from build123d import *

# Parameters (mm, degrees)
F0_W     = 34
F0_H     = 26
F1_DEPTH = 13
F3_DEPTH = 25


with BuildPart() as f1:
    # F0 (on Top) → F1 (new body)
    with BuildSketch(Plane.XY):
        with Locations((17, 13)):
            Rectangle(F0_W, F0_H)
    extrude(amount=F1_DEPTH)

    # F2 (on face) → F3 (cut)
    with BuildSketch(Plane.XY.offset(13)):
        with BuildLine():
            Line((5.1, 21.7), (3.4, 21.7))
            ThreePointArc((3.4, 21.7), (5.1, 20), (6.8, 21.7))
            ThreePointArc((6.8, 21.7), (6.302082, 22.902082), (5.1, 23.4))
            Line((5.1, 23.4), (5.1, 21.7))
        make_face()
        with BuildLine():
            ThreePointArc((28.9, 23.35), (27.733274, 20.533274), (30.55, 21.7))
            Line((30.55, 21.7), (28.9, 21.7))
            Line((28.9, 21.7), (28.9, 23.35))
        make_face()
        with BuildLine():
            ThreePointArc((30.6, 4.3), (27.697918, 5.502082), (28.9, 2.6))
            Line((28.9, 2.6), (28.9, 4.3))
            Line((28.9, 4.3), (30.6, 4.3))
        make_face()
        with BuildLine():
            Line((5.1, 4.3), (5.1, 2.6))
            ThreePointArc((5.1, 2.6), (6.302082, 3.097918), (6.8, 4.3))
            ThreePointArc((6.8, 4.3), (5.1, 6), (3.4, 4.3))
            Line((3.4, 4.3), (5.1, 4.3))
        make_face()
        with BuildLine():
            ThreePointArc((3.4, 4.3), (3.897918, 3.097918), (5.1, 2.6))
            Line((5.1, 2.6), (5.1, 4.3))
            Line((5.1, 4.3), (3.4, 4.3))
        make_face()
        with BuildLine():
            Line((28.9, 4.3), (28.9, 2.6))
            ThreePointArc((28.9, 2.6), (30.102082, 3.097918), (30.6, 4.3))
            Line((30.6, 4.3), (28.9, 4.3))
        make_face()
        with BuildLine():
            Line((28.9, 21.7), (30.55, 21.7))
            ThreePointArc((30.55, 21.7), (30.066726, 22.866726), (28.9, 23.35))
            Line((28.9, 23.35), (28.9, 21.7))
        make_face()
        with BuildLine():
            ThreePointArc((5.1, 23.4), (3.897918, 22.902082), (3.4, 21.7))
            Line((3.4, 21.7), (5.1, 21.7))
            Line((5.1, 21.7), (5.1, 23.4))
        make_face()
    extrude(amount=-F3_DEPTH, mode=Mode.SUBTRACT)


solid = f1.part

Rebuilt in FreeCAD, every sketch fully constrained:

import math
import FreeCAD as App
import Part
import Sketcher
Q = App.Units.Quantity

doc = App.newDocument("Part")
body = doc.addObject("PartDesign::Body", "Body")

sketch1 = body.newObject("Sketcher::SketchObject", "Sketch")
sketch1.AttachmentSupport = (doc.getObject("XY_Plane"), [""])
sketch1.MapMode = "FlatFace"
sketch1.addGeometry(Part.LineSegment(App.Vector(0, 26, 0), App.Vector(0, 0, 0)), False)
sketch1.addGeometry(Part.LineSegment(App.Vector(0, 0, 0), App.Vector(34, 0, 0)), False)
sketch1.addGeometry(Part.LineSegment(App.Vector(34, 0, 0), App.Vector(34, 26, 0)), False)
sketch1.addGeometry(Part.LineSegment(App.Vector(34, 26, 0), App.Vector(0, 26, 0)), False)
sketch1.addConstraint(Sketcher.Constraint("Coincident", 0, 2, 1, 1))
sketch1.addConstraint(Sketcher.Constraint("Coincident", 1, 2, 2, 1))
sketch1.addConstraint(Sketcher.Constraint("Coincident", 2, 2, 3, 1))
sketch1.addConstraint(Sketcher.Constraint("Coincident", 3, 2, 0, 1))
sketch1.addConstraint(Sketcher.Constraint("Vertical", 0))
sketch1.addConstraint(Sketcher.Constraint("Horizontal", 1))
sketch1.addConstraint(Sketcher.Constraint("Vertical", 2))
sketch1.addConstraint(Sketcher.Constraint("Horizontal", 3))
sketch1.addConstraint(Sketcher.Constraint("Coincident", 0, 2, -1, 1))
sketch1.addConstraint(Sketcher.Constraint("DistanceX", 1, 1, 1, 2, Q("34 mm")))
sketch1.addConstraint(Sketcher.Constraint("DistanceY", 0, 2, 0, 1, Q("26 mm")))
pad1 = body.newObject("PartDesign::Pad", "Pad")
pad1.Profile = sketch1
pad1.Length = 13

sketch2 = body.newObject("Sketcher::SketchObject", "Sketch001")
sketch2.AttachmentSupport = (doc.getObject("XY_Plane"), [""])
sketch2.MapMode = "FlatFace"
sketch2.AttachmentOffset = App.Placement(App.Vector(0, 0, 13), App.Rotation())
sketch2.addGeometry(Part.ArcOfCircle(Part.Circle(App.Vector(5.1, 21.7, 0), App.Vector(0, 0, 1), 1.7), math.radians(180), math.radians(360)), False)
sketch2.addGeometry(Part.ArcOfCircle(Part.Circle(App.Vector(5.1, 21.7, 0), App.Vector(0, 0, 1), 1.7), math.radians(0), math.radians(90)), False)
sketch2.addGeometry(Part.ArcOfCircle(Part.Circle(App.Vector(5.1, 21.7, 0), App.Vector(0, 0, 1), 1.7), math.radians(90), math.radians(180)), False)
sketch2.addGeometry(Part.ArcOfCircle(Part.Circle(App.Vector(28.9, 21.7, 0), App.Vector(0, 0, 1), 1.6), math.radians(90), math.radians(360)), False)
sketch2.addGeometry(Part.ArcOfCircle(Part.Circle(App.Vector(28.9, 21.7, 0), App.Vector(0, 0, 1), 1.7), math.radians(0), math.radians(90)), False)
sketch2.addGeometry(Part.ArcOfCircle(Part.Circle(App.Vector(28.9, 4.3, 0), App.Vector(0, 0, 1), 1.7), math.radians(0), math.radians(270)), False)
sketch2.addGeometry(Part.ArcOfCircle(Part.Circle(App.Vector(28.9, 4.3, 0), App.Vector(0, 0, 1), 1.7), math.radians(-90), math.radians(0)), False)
sketch2.addGeometry(Part.ArcOfCircle(Part.Circle(App.Vector(5.1, 4.3, 0), App.Vector(0, 0, 1), 1.7), math.radians(-90), math.radians(0)), False)
sketch2.addGeometry(Part.ArcOfCircle(Part.Circle(App.Vector(5.1, 4.3, 0), App.Vector(0, 0, 1), 1.7), math.radians(0), math.radians(180)), False)
sketch2.addGeometry(Part.ArcOfCircle(Part.Circle(App.Vector(5.1, 4.3, 0), App.Vector(0, 0, 1), 1.7), math.radians(180), math.radians(270)), False)
sketch2.addConstraint(Sketcher.Constraint("Tangent", 0, 2, 1, 1))
sketch2.addConstraint(Sketcher.Constraint("Tangent", 1, 2, 2, 1))
sketch2.addConstraint(Sketcher.Constraint("Tangent", 2, 2, 0, 1))
sketch2.addConstraint(Sketcher.Constraint("Tangent", 3, 1, 4, 2))
sketch2.addConstraint(Sketcher.Constraint("Coincident", 4, 1, 3, 2))
sketch2.addConstraint(Sketcher.Constraint("Tangent", 5, 1, 6, 2))
sketch2.addConstraint(Sketcher.Constraint("Coincident", 6, 1, 5, 2))
sketch2.addConstraint(Sketcher.Constraint("Tangent", 7, 2, 8, 1))
sketch2.addConstraint(Sketcher.Constraint("Tangent", 8, 2, 9, 1))
sketch2.addConstraint(Sketcher.Constraint("Tangent", 9, 2, 7, 1))
sketch2.addConstraint(Sketcher.Constraint("Equal", 2, 5))
sketch2.addConstraint(Sketcher.Constraint("Equal", 6, 7))
sketch2.addConstraint(Sketcher.Constraint("Horizontal", 2, 3, 3, 3))
sketch2.addConstraint(Sketcher.Constraint("Horizontal", 6, 3, 7, 3))
sketch2.addConstraint(Sketcher.Constraint("Horizontal", 4, 3, 0, 2))
sketch2.addConstraint(Sketcher.Constraint("Horizontal", 0, 2, 2, 2))
sketch2.addConstraint(Sketcher.Constraint("Horizontal", 2, 2, 4, 1))
sketch2.addConstraint(Sketcher.Constraint("Horizontal", 9, 3, 5, 1))
sketch2.addConstraint(Sketcher.Constraint("Horizontal", 5, 1, 7, 2))
sketch2.addConstraint(Sketcher.Constraint("Horizontal", 7, 2, 8, 2))
sketch2.addConstraint(Sketcher.Constraint("Vertical", 4, 3, 5, 3))
sketch2.addConstraint(Sketcher.Constraint("Vertical", 1, 3, 7, 3))
sketch2.addConstraint(Sketcher.Constraint("Vertical", 9, 3, 1, 2))
sketch2.addConstraint(Sketcher.Constraint("Vertical", 6, 3, 3, 1))
sketch2.addConstraint(Sketcher.Constraint("Vertical", 3, 1, 6, 1))
sketch2.addConstraint(Sketcher.Constraint("Vertical", 1, 2, 9, 2))
sketch2.addConstraint(Sketcher.Constraint("Radius", 0, Q("1.7 mm")))
sketch2.addConstraint(Sketcher.Constraint("Radius", 3, Q("1.65 mm")))
sketch2.addConstraint(Sketcher.Constraint("DistanceX", -1, 1, 0, 3, Q("5.1 mm")))
sketch2.addConstraint(Sketcher.Constraint("DistanceY", -1, 1, 0, 3, Q("21.7 mm")))
sketch2.addConstraint(Sketcher.Constraint("DistanceX", -1, 1, 3, 3, Q("28.9 mm")))
sketch2.addConstraint(Sketcher.Constraint("DistanceY", -1, 1, 5, 3, Q("4.3 mm")))
pocket1 = body.newObject("PartDesign::Pocket", "Pocket")
pocket1.Profile = sketch2
pocket1.Length = 25

doc.recompute()
